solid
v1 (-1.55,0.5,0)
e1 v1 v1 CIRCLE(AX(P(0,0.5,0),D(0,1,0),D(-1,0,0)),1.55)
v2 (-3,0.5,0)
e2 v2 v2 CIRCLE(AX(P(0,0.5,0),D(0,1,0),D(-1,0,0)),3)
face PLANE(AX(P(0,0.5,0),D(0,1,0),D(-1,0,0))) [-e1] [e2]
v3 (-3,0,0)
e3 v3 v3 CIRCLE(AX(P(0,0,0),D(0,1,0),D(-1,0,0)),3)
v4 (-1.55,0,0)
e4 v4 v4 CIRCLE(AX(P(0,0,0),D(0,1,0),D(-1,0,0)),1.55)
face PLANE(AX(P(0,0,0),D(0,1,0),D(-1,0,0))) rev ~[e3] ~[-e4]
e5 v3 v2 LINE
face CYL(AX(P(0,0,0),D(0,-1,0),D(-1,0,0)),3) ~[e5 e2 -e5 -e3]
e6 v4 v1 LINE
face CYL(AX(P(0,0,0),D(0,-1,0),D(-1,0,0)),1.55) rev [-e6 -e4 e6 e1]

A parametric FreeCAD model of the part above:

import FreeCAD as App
import Part
import Sketcher
from FreeCAD import Vector

doc = App.newDocument("Part")
body = doc.addObject("PartDesign::Body", "Body")

sketch1 = body.newObject("Sketcher::SketchObject", "Sketch")
sketch1.AttachmentSupport = (doc.getObject("XZ_Plane"), [""])
sketch1.MapMode = "FlatFace"
sketch1.addGeometry(Part.Circle(Vector(0, 0, 0), Vector(0, 0, 1), 3), False)
sketch1.addGeometry(Part.Circle(Vector(0, 0, 0), Vector(0, 0, 1), 1.6), False)
sketch1.addConstraint(Sketcher.Constraint("Coincident", 0, 3, -1, 1))
sketch1.addConstraint(Sketcher.Constraint("Coincident", 1, 3, -1, 1))
sketch1.addConstraint(Sketcher.Constraint("Diameter", 0, 6.0))
sketch1.addConstraint(Sketcher.Constraint("Diameter", 1, 3.1))
pad1 = body.newObject("PartDesign::Pad", "Pad")
pad1.Profile = sketch1
pad1.Length = 0.5
pad1.Reversed = True

doc.recompute()
